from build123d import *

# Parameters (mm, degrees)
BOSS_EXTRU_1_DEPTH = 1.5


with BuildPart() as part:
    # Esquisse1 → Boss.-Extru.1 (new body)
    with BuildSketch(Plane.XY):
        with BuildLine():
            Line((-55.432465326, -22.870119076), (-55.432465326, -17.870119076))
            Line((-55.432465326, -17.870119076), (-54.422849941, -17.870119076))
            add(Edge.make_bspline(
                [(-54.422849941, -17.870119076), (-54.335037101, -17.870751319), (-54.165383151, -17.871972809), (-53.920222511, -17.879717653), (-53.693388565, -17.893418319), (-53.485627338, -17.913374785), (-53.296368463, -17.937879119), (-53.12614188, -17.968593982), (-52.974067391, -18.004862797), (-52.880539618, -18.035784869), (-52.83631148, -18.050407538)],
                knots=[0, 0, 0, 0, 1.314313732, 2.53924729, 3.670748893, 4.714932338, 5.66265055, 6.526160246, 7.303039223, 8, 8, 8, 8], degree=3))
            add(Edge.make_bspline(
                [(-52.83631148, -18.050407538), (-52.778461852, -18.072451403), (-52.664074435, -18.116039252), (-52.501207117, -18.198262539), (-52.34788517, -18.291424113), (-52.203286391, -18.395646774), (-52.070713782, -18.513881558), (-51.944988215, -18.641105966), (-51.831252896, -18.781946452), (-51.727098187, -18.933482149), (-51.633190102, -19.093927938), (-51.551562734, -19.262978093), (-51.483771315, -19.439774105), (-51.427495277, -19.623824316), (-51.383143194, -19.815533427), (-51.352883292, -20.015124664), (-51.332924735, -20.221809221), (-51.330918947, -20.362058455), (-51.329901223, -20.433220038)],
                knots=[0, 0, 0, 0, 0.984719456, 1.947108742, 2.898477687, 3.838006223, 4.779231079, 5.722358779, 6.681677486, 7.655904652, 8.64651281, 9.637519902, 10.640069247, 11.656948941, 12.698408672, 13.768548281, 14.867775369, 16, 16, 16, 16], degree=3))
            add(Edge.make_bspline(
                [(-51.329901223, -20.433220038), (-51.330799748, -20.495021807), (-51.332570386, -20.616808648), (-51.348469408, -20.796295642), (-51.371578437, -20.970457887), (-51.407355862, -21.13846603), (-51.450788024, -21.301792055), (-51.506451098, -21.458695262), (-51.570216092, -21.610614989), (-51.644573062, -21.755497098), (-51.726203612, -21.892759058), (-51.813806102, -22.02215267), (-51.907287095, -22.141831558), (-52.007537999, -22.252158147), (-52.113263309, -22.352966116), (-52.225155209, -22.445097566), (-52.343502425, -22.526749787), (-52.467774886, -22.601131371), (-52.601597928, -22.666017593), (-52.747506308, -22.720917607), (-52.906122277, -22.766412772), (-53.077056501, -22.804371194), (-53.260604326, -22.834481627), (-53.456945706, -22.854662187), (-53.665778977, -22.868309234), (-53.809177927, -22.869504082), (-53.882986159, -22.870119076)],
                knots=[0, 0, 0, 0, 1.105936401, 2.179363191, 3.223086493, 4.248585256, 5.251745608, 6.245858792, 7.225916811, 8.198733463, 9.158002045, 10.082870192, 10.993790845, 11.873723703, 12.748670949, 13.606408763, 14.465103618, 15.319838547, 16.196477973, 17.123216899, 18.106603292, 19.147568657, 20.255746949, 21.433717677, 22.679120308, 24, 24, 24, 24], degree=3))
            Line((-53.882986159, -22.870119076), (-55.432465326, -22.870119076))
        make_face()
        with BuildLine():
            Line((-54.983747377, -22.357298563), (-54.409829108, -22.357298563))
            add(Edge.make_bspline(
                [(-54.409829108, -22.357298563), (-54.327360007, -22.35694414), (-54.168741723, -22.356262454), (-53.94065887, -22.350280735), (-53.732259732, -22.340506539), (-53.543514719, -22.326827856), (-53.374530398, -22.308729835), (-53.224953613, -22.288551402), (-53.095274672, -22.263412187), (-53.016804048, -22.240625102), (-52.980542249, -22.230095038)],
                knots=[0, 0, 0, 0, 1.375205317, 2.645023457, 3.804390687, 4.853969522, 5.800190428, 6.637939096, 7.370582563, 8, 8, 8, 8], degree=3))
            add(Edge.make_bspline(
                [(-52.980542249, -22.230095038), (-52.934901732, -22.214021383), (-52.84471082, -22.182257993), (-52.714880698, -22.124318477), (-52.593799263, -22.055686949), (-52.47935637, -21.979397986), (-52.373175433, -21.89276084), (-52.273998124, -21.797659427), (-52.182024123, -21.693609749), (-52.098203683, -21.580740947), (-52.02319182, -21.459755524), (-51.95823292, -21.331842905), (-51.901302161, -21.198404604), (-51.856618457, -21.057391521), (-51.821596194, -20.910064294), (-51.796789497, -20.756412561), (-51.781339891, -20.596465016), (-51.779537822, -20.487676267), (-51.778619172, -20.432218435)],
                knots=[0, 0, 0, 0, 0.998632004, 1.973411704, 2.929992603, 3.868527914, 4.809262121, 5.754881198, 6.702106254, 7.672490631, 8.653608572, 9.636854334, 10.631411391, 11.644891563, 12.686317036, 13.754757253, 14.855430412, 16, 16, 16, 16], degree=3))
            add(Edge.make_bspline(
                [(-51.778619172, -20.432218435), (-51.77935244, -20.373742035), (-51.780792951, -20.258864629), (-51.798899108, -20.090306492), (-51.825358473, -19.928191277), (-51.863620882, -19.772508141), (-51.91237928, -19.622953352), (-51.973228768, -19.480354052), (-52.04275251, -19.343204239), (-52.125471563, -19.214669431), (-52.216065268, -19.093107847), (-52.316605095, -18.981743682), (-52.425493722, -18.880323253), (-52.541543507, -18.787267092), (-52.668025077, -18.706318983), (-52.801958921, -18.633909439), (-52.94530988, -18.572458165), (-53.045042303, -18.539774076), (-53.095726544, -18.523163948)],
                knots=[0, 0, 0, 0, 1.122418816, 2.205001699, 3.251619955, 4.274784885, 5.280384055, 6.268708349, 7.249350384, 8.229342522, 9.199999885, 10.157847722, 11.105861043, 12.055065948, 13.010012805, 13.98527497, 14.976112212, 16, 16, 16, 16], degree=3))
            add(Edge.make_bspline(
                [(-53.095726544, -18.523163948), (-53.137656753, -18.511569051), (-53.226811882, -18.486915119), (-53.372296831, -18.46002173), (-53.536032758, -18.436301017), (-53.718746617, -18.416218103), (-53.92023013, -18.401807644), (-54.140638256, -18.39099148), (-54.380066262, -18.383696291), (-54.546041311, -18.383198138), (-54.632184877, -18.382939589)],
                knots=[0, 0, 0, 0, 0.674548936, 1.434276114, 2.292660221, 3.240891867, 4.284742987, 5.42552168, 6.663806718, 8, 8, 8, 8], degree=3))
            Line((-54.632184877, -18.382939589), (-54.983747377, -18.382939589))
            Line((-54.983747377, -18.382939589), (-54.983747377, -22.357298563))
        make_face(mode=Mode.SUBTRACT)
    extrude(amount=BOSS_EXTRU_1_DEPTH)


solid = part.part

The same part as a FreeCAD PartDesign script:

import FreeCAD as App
import Part
import Sketcher

V = App.Vector

doc = App.newDocument("Part")
body = doc.addObject("PartDesign::Body", "Body")

# Sketch on XY plane
sketch1 = body.newObject("Sketcher::SketchObject", "Sketch")
sketch1.AttachmentSupport = (doc.getObject("XY_Plane"), [""])
sketch1.MapMode = "FlatFace"
sketch1.addGeometry([
    Part.LineSegment(V(-55.432465, -17.870119, 0), V(-55.432465, -22.870119, 0)),  # 0
    Part.LineSegment(V(-55.432465, -22.870119, 0), V(-53.882986, -22.870119, 0)),  # 1
    Part.BSplineCurve([V(-51.329901, -20.43322, 0), V(-51.3308, -20.495022, 0), V(-51.33257, -20.616809, 0), V(-51.348469, -20.796296, 0), V(-51.371578, -20.970458, 0), V(-51.407356, -21.138466, 0), V(-51.450788, -21.301792, 0), V(-51.506451, -21.458695, 0), V(-51.570216, -21.610615, 0), V(-51.644573, -21.755497, 0), V(-51.726204, -21.892759, 0), V(-51.813806, -22.022153, 0), V(-51.907287, -22.141832, 0), V(-52.007538, -22.252158, 0), V(-52.113263, -22.352966, 0), V(-52.225155, -22.445098, 0), V(-52.343502, -22.52675, 0), V(-52.467775, -22.601131, 0), V(-52.601598, -22.666018, 0), V(-52.747506, -22.720918, 0), V(-52.906122, -22.766413, 0), V(-53.077057, -22.804371, 0), V(-53.260604, -22.834482, 0), V(-53.456946, -22.854662, 0), V(-53.665779, -22.868309, 0), V(-53.809178, -22.869504, 0), V(-53.882986, -22.870119, 0)], [4, 1, 1, 1, 1, 1, 1, 1, 1, 1, 1, 1, 1, 1, 1, 1, 1, 1, 1, 1, 1, 1, 1, 1, 4], [0, 1.105936401, 2.179363191, 3.223086493, 4.248585256, 5.251745608, 6.245858792, 7.225916811, 8.198733463, 9.158002045, 10.082870192, 10.993790845, 11.873723703, 12.748670949, 13.606408763, 14.465103618, 15.319838547, 16.196477973, 17.123216899, 18.106603292, 19.147568657, 20.255746949, 21.433717677, 22.679120308, 24], False, 3, [1, 1, 1, 1, 1, 1, 1, 1, 1, 1, 1, 1, 1, 1, 1, 1, 1, 1, 1, 1, 1, 1, 1, 1, 1, 1, 1], False),  # 2
    Part.BSplineCurve([V(-52.836311, -18.050408, 0), V(-52.778462, -18.072451, 0), V(-52.664074, -18.116039, 0), V(-52.501207, -18.198263, 0), V(-52.347885, -18.291424, 0), V(-52.203286, -18.395647, 0), V(-52.070714, -18.513882, 0), V(-51.944988, -18.641106, 0), V(-51.831253, -18.781946, 0), V(-51.727098, -18.933482, 0), V(-51.63319, -19.093928, 0), V(-51.551563, -19.262978, 0), V(-51.483771, -19.439774, 0), V(-51.427495, -19.623824, 0), V(-51.383143, -19.815533, 0), V(-51.352883, -20.015125, 0), V(-51.332925, -20.221809, 0), V(-51.330919, -20.362058, 0), V(-51.329901, -20.43322, 0)], [4, 1, 1, 1, 1, 1, 1, 1, 1, 1, 1, 1, 1, 1, 1, 1, 4], [0, 0.984719456, 1.947108742, 2.898477687, 3.838006223, 4.779231079, 5.722358779, 6.681677486, 7.655904652, 8.64651281, 9.637519902, 10.640069247, 11.656948941, 12.698408672, 13.768548281, 14.867775369, 16], False, 3, [1, 1, 1, 1, 1, 1, 1, 1, 1, 1, 1, 1, 1, 1, 1, 1, 1, 1, 1], False),  # 3
    Part.BSplineCurve([V(-54.42285, -17.870119, 0), V(-54.335037, -17.870751, 0), V(-54.165383, -17.871973, 0), V(-53.920223, -17.879718, 0), V(-53.693389, -17.893418, 0), V(-53.485627, -17.913375, 0), V(-53.296368, -17.937879, 0), V(-53.126142, -17.968594, 0), V(-52.974067, -18.004863, 0), V(-52.88054, -18.035785, 0), V(-52.836311, -18.050408, 0)], [4, 1, 1, 1, 1, 1, 1, 1, 4], [0, 1.314313732, 2.53924729, 3.670748893, 4.714932338, 5.66265055, 6.526160246, 7.303039223, 8], False, 3, [1, 1, 1, 1, 1, 1, 1, 1, 1, 1, 1], False),  # 4
    Part.LineSegment(V(-54.42285, -17.870119, 0), V(-55.432465, -17.870119, 0)),  # 5
    Part.LineSegment(V(-54.983747, -22.357299, 0), V(-54.983747, -18.38294, 0)),  # 6
    Part.LineSegment(V(-54.983747, -18.38294, 0), V(-54.632185, -18.38294, 0)),  # 7
    Part.BSplineCurve([V(-53.095727, -18.523164, 0), V(-53.137657, -18.511569, 0), V(-53.226812, -18.486915, 0), V(-53.372297, -18.460022, 0), V(-53.536033, -18.436301, 0), V(-53.718747, -18.416218, 0), V(-53.92023, -18.401808, 0), V(-54.140638, -18.390991, 0), V(-54.380066, -18.383696, 0), V(-54.546041, -18.383198, 0), V(-54.632185, -18.38294, 0)], [4, 1, 1, 1, 1, 1, 1, 1, 4], [0, 0.674548936, 1.434276114, 2.292660221, 3.240891867, 4.284742987, 5.42552168, 6.663806718, 8], False, 3, [1, 1, 1, 1, 1, 1, 1, 1, 1, 1, 1], False),  # 8
    Part.BSplineCurve([V(-51.778619, -20.432218, 0), V(-51.779352, -20.373742, 0), V(-51.780793, -20.258865, 0), V(-51.798899, -20.090306, 0), V(-51.825358, -19.928191, 0), V(-51.863621, -19.772508, 0), V(-51.912379, -19.622953, 0), V(-51.973229, -19.480354, 0), V(-52.042753, -19.343204, 0), V(-52.125472, -19.214669, 0), V(-52.216065, -19.093108, 0), V(-52.316605, -18.981744, 0), V(-52.425494, -18.880323, 0), V(-52.541544, -18.787267, 0), V(-52.668025, -18.706319, 0), V(-52.801959, -18.633909, 0), V(-52.94531, -18.572458, 0), V(-53.045042, -18.539774, 0), V(-53.095727, -18.523164, 0)], [4, 1, 1, 1, 1, 1, 1, 1, 1, 1, 1, 1, 1, 1, 1, 1, 4], [0, 1.122418816, 2.205001699, 3.251619955, 4.274784885, 5.280384055, 6.268708349, 7.249350384, 8.229342522, 9.199999885, 10.157847722, 11.105861043, 12.055065948, 13.010012805, 13.98527497, 14.976112212, 16], False, 3, [1, 1, 1, 1, 1, 1, 1, 1, 1, 1, 1, 1, 1, 1, 1, 1, 1, 1, 1], False),  # 9
    Part.BSplineCurve([V(-52.980542, -22.230095, 0), V(-52.934902, -22.214021, 0), V(-52.844711, -22.182258, 0), V(-52.714881, -22.124318, 0), V(-52.593799, -22.055687, 0), V(-52.479356, -21.979398, 0), V(-52.373175, -21.892761, 0), V(-52.273998, -21.797659, 0), V(-52.182024, -21.69361, 0), V(-52.098204, -21.580741, 0), V(-52.023192, -21.459756, 0), V(-51.958233, -21.331843, 0), V(-51.901302, -21.198405, 0), V(-51.856618, -21.057392, 0), V(-51.821596, -20.910064, 0), V(-51.796789, -20.756413, 0), V(-51.78134, -20.596465, 0), V(-51.779538, -20.487676, 0), V(-51.778619, -20.432218, 0)], [4, 1, 1, 1, 1, 1, 1, 1, 1, 1, 1, 1, 1, 1, 1, 1, 4], [0, 0.998632004, 1.973411704, 2.929992603, 3.868527914, 4.809262121, 5.754881198, 6.702106254, 7.672490631, 8.653608572, 9.636854334, 10.631411391, 11.644891563, 12.686317036, 13.754757253, 14.855430412, 16], False, 3, [1, 1, 1, 1, 1, 1, 1, 1, 1, 1, 1, 1, 1, 1, 1, 1, 1, 1, 1], False),  # 10
    Part.BSplineCurve([V(-54.409829, -22.357299, 0), V(-54.32736, -22.356944, 0), V(-54.168742, -22.356262, 0), V(-53.940659, -22.350281, 0), V(-53.73226, -22.340507, 0), V(-53.543515, -22.326828, 0), V(-53.37453, -22.30873, 0), V(-53.224954, -22.288551, 0), V(-53.095275, -22.263412, 0), V(-53.016804, -22.240625, 0), V(-52.980542, -22.230095, 0)], [4, 1, 1, 1, 1, 1, 1, 1, 4], [0, 1.375205317, 2.645023457, 3.804390687, 4.853969522, 5.800190428, 6.637939096, 7.370582563, 8], False, 3, [1, 1, 1, 1, 1, 1, 1, 1, 1, 1, 1], False),  # 11
    Part.LineSegment(V(-54.409829, -22.357299, 0), V(-54.983747, -22.357299, 0)),  # 12
], False)
sketch1.addConstraint([
    Sketcher.Constraint("Block", 2),
    Sketcher.Constraint("Block", 3),
    Sketcher.Constraint("Block", 4),
    Sketcher.Constraint("Block", 8),
    Sketcher.Constraint("Block", 9),
    Sketcher.Constraint("Block", 10),
    Sketcher.Constraint("Block", 11),
    Sketcher.Constraint("Coincident", 0, 2, 1, 1),
    Sketcher.Constraint("Coincident", 1, 2, 2, 2),
    Sketcher.Constraint("Coincident", 4, 1, 5, 1),
    Sketcher.Constraint("Coincident", 5, 2, 0, 1),
    Sketcher.Constraint("Coincident", 6, 2, 7, 1),
    Sketcher.Constraint("Coincident", 7, 2, 8, 2),
    Sketcher.Constraint("Coincident", 11, 1, 12, 1),
    Sketcher.Constraint("Coincident", 12, 2, 6, 1),
    Sketcher.Constraint("Vertical", 0),
    Sketcher.Constraint("Horizontal", 1),
    Sketcher.Constraint("Horizontal", 5),
    Sketcher.Constraint("Vertical", 6),
    Sketcher.Constraint("Horizontal", 7),
    Sketcher.Constraint("Horizontal", 12),
    Sketcher.Constraint("DistanceX", 1, 1, 1, 2, 1.549479),
    Sketcher.Constraint("DistanceX", 12, 2, 12, 1, 0.573918),
])
pad1 = body.newObject("PartDesign::Pad", "Pad")
pad1.Profile = sketch1
pad1.Length = 1.5

doc.recompute()
